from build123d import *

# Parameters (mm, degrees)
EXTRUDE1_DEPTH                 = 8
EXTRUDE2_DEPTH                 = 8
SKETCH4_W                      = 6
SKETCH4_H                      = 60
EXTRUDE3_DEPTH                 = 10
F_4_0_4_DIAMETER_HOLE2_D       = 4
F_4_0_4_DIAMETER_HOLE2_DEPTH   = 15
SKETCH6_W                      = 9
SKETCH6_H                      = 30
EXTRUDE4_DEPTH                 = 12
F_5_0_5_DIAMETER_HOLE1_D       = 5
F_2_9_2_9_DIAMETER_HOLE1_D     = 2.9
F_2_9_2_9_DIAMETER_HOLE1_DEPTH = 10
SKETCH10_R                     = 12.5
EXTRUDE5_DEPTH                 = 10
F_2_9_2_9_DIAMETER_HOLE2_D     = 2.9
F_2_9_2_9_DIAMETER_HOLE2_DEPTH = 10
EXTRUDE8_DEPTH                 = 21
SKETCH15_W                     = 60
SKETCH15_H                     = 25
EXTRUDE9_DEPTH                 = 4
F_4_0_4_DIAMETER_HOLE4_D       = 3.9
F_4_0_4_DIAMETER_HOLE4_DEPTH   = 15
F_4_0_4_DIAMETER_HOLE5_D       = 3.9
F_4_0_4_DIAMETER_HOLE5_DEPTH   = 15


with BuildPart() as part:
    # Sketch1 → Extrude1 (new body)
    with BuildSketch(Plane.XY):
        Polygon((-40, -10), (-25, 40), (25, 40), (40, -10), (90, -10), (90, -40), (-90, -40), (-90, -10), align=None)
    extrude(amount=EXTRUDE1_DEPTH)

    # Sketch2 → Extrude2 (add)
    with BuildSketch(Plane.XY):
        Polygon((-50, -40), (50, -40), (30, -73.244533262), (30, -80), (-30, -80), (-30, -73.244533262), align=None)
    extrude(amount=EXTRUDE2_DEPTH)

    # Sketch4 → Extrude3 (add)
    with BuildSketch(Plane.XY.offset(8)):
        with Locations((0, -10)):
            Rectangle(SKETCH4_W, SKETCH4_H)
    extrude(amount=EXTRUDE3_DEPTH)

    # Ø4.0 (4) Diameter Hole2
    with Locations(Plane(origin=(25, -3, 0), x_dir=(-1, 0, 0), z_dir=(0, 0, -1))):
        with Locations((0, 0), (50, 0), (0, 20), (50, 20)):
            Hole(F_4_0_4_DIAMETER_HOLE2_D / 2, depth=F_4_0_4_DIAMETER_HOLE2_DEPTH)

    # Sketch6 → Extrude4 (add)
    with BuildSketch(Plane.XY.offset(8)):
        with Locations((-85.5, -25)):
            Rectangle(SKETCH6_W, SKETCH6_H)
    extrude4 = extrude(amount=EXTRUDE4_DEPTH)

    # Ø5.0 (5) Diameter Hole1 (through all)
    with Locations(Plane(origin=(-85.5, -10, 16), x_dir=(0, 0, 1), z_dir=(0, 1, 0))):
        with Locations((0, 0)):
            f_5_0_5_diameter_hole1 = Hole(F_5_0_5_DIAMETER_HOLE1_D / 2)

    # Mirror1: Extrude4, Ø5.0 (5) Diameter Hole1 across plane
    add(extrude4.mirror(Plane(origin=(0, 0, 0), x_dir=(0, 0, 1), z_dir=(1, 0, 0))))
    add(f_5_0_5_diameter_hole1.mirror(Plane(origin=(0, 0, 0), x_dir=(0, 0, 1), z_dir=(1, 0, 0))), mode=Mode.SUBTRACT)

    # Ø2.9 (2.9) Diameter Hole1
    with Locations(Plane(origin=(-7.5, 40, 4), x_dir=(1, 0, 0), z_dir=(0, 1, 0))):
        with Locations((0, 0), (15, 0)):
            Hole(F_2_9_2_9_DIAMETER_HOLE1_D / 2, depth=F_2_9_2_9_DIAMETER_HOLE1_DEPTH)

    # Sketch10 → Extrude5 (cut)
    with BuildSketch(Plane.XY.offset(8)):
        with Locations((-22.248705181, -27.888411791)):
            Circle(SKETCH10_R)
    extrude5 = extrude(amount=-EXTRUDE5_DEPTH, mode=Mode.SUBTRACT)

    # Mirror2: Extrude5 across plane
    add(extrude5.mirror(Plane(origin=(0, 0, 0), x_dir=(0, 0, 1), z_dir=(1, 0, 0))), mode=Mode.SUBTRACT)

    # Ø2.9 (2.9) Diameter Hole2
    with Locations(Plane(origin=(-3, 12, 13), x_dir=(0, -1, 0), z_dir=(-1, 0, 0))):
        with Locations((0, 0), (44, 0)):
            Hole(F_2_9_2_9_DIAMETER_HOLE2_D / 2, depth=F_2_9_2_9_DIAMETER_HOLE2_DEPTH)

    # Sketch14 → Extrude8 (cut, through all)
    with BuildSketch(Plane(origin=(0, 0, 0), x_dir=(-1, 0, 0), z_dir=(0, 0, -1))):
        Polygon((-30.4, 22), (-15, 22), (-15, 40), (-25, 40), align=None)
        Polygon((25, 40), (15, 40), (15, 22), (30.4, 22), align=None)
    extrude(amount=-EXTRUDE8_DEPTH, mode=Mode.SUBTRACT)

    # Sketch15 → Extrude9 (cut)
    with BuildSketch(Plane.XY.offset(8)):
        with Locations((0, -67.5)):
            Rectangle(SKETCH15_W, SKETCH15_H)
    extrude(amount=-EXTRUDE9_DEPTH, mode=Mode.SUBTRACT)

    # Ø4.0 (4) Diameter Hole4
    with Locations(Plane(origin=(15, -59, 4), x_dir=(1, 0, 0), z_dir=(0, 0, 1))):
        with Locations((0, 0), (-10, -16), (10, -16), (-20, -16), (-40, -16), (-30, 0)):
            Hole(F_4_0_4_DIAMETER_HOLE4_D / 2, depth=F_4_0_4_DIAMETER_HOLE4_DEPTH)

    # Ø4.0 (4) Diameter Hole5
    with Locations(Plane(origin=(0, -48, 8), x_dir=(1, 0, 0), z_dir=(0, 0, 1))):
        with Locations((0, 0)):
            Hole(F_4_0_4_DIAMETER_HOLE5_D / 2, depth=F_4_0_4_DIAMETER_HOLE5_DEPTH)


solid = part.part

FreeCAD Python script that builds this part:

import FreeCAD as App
import Part
import Sketcher


def add_polygon(sketch, points):
    """Adds a closed chain of lines whose ends are joined by coincident constraints."""
    first, n = sketch.GeometryCount, len(points)
    for a, b in zip(points, points[1:] + points[:1]):
        sketch.addGeometry(Part.LineSegment(App.Vector(*a, 0), App.Vector(*b, 0)), False)
    for i in range(n):
        sketch.addConstraint(Sketcher.Constraint("Coincident", first + i, 2, first + (i + 1) % n, 1))

doc = App.newDocument("Part")
body = doc.addObject("PartDesign::Body", "Body")

# Sketch on XY plane
sketch1 = body.newObject("Sketcher::SketchObject", "Sketch")
sketch1.AttachmentSupport = (doc.getObject("XY_Plane"), [""])
sketch1.MapMode = "FlatFace"
add_polygon(sketch1, [(-25, 40), (-40, -10), (-90, -10), (-90, -40), (90, -40), (90, -10), (40, -10), (25, 40)])  # lines 0-7
sketch1.addConstraint([
    Sketcher.Constraint("Horizontal", 1),
    Sketcher.Constraint("Vertical", 2),
    Sketcher.Constraint("Horizontal", 3),
    Sketcher.Constraint("Vertical", 4),
    Sketcher.Constraint("Horizontal", 5),
    Sketcher.Constraint("Horizontal", 7),
    Sketcher.Constraint("Symmetric", 1, 2, 4, 2, -2),
    Sketcher.Constraint("Equal", 1, 5),
    Sketcher.Constraint("Equal", 5, 7),
    Sketcher.Constraint("Equal", 0, 6),
    Sketcher.Constraint("DistanceX", 1, 2, 1, 1, 50.0),
    Sketcher.Constraint("DistanceX", 3, 1, 3, 2, 180.0),
    Sketcher.Constraint("DistanceY", 2, 2, 2, 1, 30.0),
    Sketcher.Constraint("DistanceY", 0, 2, -1, 1, 10.0),
    Sketcher.Constraint("DistanceY", -1, 1, 6, 2, 40.0),
])
pad1 = body.newObject("PartDesign::Pad", "Pad")
pad1.Profile = sketch1
pad1.Length = 8

# Sketch on XY plane
sketch2 = body.newObject("Sketcher::SketchObject", "Sketch001")
sketch2.AttachmentSupport = (doc.getObject("XY_Plane"), [""])
sketch2.MapMode = "FlatFace"
add_polygon(sketch2, [(50, -40), (-50, -40), (-30, -73.244533), (-30, -80), (30, -80), (30, -73.244533)])  # lines 0-5
sketch2.addConstraint([
    Sketcher.Constraint("Horizontal", 0),
    Sketcher.Constraint("Vertical", 2),
    Sketcher.Constraint("Horizontal", 3),
    Sketcher.Constraint("Vertical", 4),
    Sketcher.Constraint("Symmetric", 1, 2, 4, 2, -2),
    Sketcher.Constraint("Equal", 1, 5),
    Sketcher.Constraint("DistanceX", 0, 2, 0, 1, 100.0),
    Sketcher.Constraint("DistanceX", 3, 1, 3, 2, 60.0),
    Sketcher.Constraint("DistanceY", 0, 2, -1, 1, 40.0),
    Sketcher.Constraint("DistanceY", 2, 2, -1, 1, 80.0),
    Sketcher.Constraint("DistanceY", 2, 2, 2, 1, 6.755467),
])
pad2 = body.newObject("PartDesign::Pad", "Pad001")
pad2.Profile = sketch2
pad2.Length = 8

# Sketch on XY plane
sketch3 = body.newObject("Sketcher::SketchObject", "Sketch002")
sketch3.AttachmentSupport = (doc.getObject("XY_Plane"), [""])
sketch3.MapMode = "FlatFace"
sketch3.AttachmentOffset = App.Placement(App.Vector(0, 0, 8), App.Rotation())
add_polygon(sketch3, [(-3, 20), (-3, -40), (3, -40), (3, 20)])  # lines 0-3
sketch3.addConstraint([
    Sketcher.Constraint("Vertical", 0),
    Sketcher.Constraint("Horizontal", 1),
    Sketcher.Constraint("Vertical", 2),
    Sketcher.Constraint("Horizontal", 3),
    Sketcher.Constraint("DistanceX", 1, 1, 1, 2, 6.0),
    Sketcher.Constraint("DistanceY", 0, 2, 0, 1, 60.0),
    Sketcher.Constraint("DistanceX", 0, 2, -1, 1, 3.0),
    Sketcher.Constraint("DistanceY", 0, 2, -1, 1, 40.0),
])
pad3 = body.newObject("PartDesign::Pad", "Pad002")
pad3.Profile = sketch3
pad3.Length = 10

# Sketch on XY plane
sketch4 = body.newObject("Sketcher::SketchObject", "Sketch003")
sketch4.AttachmentSupport = (doc.getObject("XY_Plane"), [""])
sketch4.MapMode = "FlatFace"
sketch4.addGeometry([
    Part.Circle(App.Vector(25, -3, 0), App.Vector(0, 0, 1), 2),
    Part.Circle(App.Vector(-25, -3, 0), App.Vector(0, 0, 1), 2),
    Part.Circle(App.Vector(25, 17, 0), App.Vector(0, 0, 1), 2),
    Part.Circle(App.Vector(-25, 17, 0), App.Vector(0, 0, 1), 2),
], False)
sketch4.addConstraint([
    Sketcher.Constraint("Equal", 0, 1),
    Sketcher.Constraint("Equal", 1, 2),
    Sketcher.Constraint("Equal", 2, 3),
    Sketcher.Constraint("Symmetric", 0, 3, 1, 3, -2),
    Sketcher.Constraint("Symmetric", 2, 3, 3, 3, -2),
    Sketcher.Constraint("Vertical", 0, 3, 2, 3),
    Sketcher.Constraint("Diameter", 0, 4.0),
    Sketcher.Constraint("DistanceX", -1, 1, 0, 3, 25.0),
    Sketcher.Constraint("DistanceY", 0, 3, -1, 1, 3.0),
    Sketcher.Constraint("DistanceY", -1, 1, 2, 3, 17.0),
])
doc.recompute()
hole = body.newObject("PartDesign::Hole", "Hole")
hole.Profile = sketch4
hole.ThreadType = "None"
hole.Diameter = 4
hole.DepthType = "Dimension"
hole.Depth = 15
hole.DrillPoint = "Flat"
hole.Reversed = True

# Sketch on XY plane
sketch5 = body.newObject("Sketcher::SketchObject", "Sketch004")
sketch5.AttachmentSupport = (doc.getObject("XY_Plane"), [""])
sketch5.MapMode = "FlatFace"
sketch5.AttachmentOffset = App.Placement(App.Vector(0, 0, 8), App.Rotation())
add_polygon(sketch5, [(-90, -10), (-90, -40), (-81, -40), (-81, -10)])  # lines 0-3
sketch5.addConstraint([
    Sketcher.Constraint("Vertical", 0),
    Sketcher.Constraint("Horizontal", 1),
    Sketcher.Constraint("Vertical", 2),
    Sketcher.Constraint("Horizontal", 3),
    Sketcher.Constraint("DistanceX", 1, 1, 1, 2, 9.0),
    Sketcher.Constraint("DistanceY", 0, 2, 0, 1, 30.0),
    Sketcher.Constraint("DistanceX", 0, 2, -1, 1, 90.0),
    Sketcher.Constraint("DistanceY", 0, 2, -1, 1, 40.0),
])
pad4 = body.newObject("PartDesign::Pad", "Pad003")
pad4.Profile = sketch5
pad4.Length = 12

# Sketch on XZ plane
sketch6 = body.newObject("Sketcher::SketchObject", "Sketch005")
sketch6.AttachmentSupport = (doc.getObject("XZ_Plane"), [""])
sketch6.MapMode = "FlatFace"
sketch6.AttachmentOffset = App.Placement(App.Vector(0, 0, 10), App.Rotation())
sketch6.addGeometry(Part.Circle(App.Vector(-85.5, 16, 0), App.Vector(0, 0, 1), 2.5), False)
sketch6.addConstraint([
    Sketcher.Constraint("Diameter", 0, 5.0),
    Sketcher.Constraint("DistanceY", -1, 1, 0, 3, 16.0),
    Sketcher.Constraint("DistanceX", 0, 3, -1, 1, 85.5),
])
doc.recompute()
hole2 = body.newObject("PartDesign::Hole", "Hole001")
hole2.Profile = sketch6
hole2.ThreadType = "None"
hole2.Diameter = 5
hole2.DepthType = "ThroughAll"
hole2.Reversed = True
doc.recompute()

mirrored = body.newObject("PartDesign::Mirrored", "Mirrored")
mirrored.Originals = [pad4, hole2]
mirrored.MirrorPlane = (doc.getObject("YZ_Plane"), [""])
body.Tip = mirrored

# Sketch on XZ plane
sketch7 = body.newObject("Sketcher::SketchObject", "Sketch006")
sketch7.AttachmentSupport = (doc.getObject("XZ_Plane"), [""])
sketch7.MapMode = "FlatFace"
sketch7.AttachmentOffset = App.Placement(App.Vector(0, 0, -40), App.Rotation())
sketch7.addGeometry([
    Part.Circle(App.Vector(-7.5, 4, 0), App.Vector(0, 0, 1), 1.45),
    Part.Circle(App.Vector(7.5, 4, 0), App.Vector(0, 0, 1), 1.45),
], False)
sketch7.addConstraint([
    Sketcher.Constraint("Equal", 0, 1),
    Sketcher.Constraint("Symmetric", 0, 3, 1, 3, -2),
    Sketcher.Constraint("Diameter", 0, 2.9),
    Sketcher.Constraint("DistanceY", -1, 1, 0, 3, 4.0),
    Sketcher.Constraint("DistanceX", 0, 3, 1, 3, 15.0),
])
doc.recompute()
hole3 = body.newObject("PartDesign::Hole", "Hole002")
hole3.Profile = sketch7
hole3.ThreadType = "None"
hole3.Diameter = 2.9
hole3.DepthType = "Dimension"
hole3.Depth = 10
hole3.DrillPoint = "Flat"
hole3.Reversed = True

# Sketch on XY plane
sketch8 = body.newObject("Sketcher::SketchObject", "Sketch007")
sketch8.AttachmentSupport = (doc.getObject("XY_Plane"), [""])
sketch8.MapMode = "FlatFace"
sketch8.AttachmentOffset = App.Placement(App.Vector(0, 0, 8), App.Rotation())
sketch8.addGeometry(Part.Circle(App.Vector(-22.248705, -27.888412, 0), App.Vector(0, 0, 1), 12.5), False)
sketch8.addConstraint([
    Sketcher.Constraint("Diameter", 0, 25.0),
    Sketcher.Constraint("DistanceY", 0, 3, -1, 1, 27.888412),
    Sketcher.Constraint("DistanceX", 0, 3, -1, 1, 22.248705),
])
pocket1 = body.newObject("PartDesign::Pocket", "Pocket")
pocket1.Profile = sketch8
pocket1.Length = 10
doc.recompute()

mirrored2 = body.newObject("PartDesign::Mirrored", "Mirrored001")
mirrored2.Originals = [pocket1]
mirrored2.MirrorPlane = (doc.getObject("YZ_Plane"), [""])
body.Tip = mirrored2

# Sketch on YZ plane
sketch9 = body.newObject("Sketcher::SketchObject", "Sketch008")
sketch9.AttachmentSupport = (doc.getObject("YZ_Plane"), [""])
sketch9.MapMode = "FlatFace"
sketch9.AttachmentOffset = App.Placement(App.Vector(0, 0, -3), App.Rotation())
sketch9.addGeometry([
    Part.Circle(App.Vector(12, 13, 0), App.Vector(0, 0, 1), 1.45),
    Part.Circle(App.Vector(-32, 13, 0), App.Vector(0, 0, 1), 1.45),
], False)
sketch9.addConstraint([
    Sketcher.Constraint("Equal", 0, 1),
    Sketcher.Constraint("Horizontal", 0, 3, 1, 3),
    Sketcher.Constraint("Diameter", 0, 2.9),
    Sketcher.Constraint("DistanceX", -1, 1, 0, 3, 12.0),
    Sketcher.Constraint("DistanceY", -1, 1, 0, 3, 13.0),
    Sketcher.Constraint("DistanceX", 1, 3, -1, 1, 32.0),
])
doc.recompute()
hole4 = body.newObject("PartDesign::Hole", "Hole003")
hole4.Profile = sketch9
hole4.ThreadType = "None"
hole4.Diameter = 2.9
hole4.DepthType = "Dimension"
hole4.Depth = 10
hole4.DrillPoint = "Flat"
hole4.Reversed = True

# Sketch on XY plane
sketch10 = body.newObject("Sketcher::SketchObject", "Sketch009")
sketch10.AttachmentSupport = (doc.getObject("XY_Plane"), [""])
sketch10.MapMode = "FlatFace"
add_polygon(sketch10, [(30.4, 22), (15, 22), (15, 40), (25, 40)])  # lines 0-3
add_polygon(sketch10, [(-25, 40), (-15, 40), (-15, 22), (-30.4, 22)])  # lines 4-7
sketch10.addConstraint([
    Sketcher.Constraint("Horizontal", 0),
    Sketcher.Constraint("Vertical", 1),
    Sketcher.Constraint("Horizontal", 2),
    Sketcher.Constraint("Horizontal", 4),
    Sketcher.Constraint("Vertical", 5),
    Sketcher.Constraint("Horizontal", 6),
    Sketcher.Constraint("Symmetric", 1, 2, 4, 2, -2),
    Sketcher.Constraint("Symmetric", 3, 2, 6, 2, -2),
    Sketcher.Constraint("Equal", 2, 4),
    Sketcher.Constraint("DistanceX", 2, 1, 2, 2, 10.0),
    Sketcher.Constraint("DistanceY", 1, 1, 1, 2, 18.0),
    Sketcher.Constraint("DistanceX", 0, 2, 0, 1, 15.4),
    Sketcher.Constraint("DistanceX", -1, 1, 0, 2, 15.0),
    Sketcher.Constraint("DistanceY", -1, 1, 0, 2, 22.0),
])
pocket2 = body.newObject("PartDesign::Pocket", "Pocket001")
pocket2.Profile = sketch10
pocket2.Type = "ThroughAll"
pocket2.Reversed = True

# Sketch on XY plane
sketch11 = body.newObject("Sketcher::SketchObject", "Sketch010")
sketch11.AttachmentSupport = (doc.getObject("XY_Plane"), [""])
sketch11.MapMode = "FlatFace"
sketch11.AttachmentOffset = App.Placement(App.Vector(0, 0, 8), App.Rotation())
add_polygon(sketch11, [(-30, -55), (-30, -80), (30, -80), (30, -55)])  # lines 0-3
sketch11.addConstraint([
    Sketcher.Constraint("Vertical", 0),
    Sketcher.Constraint("Horizontal", 1),
    Sketcher.Constraint("Vertical", 2),
    Sketcher.Constraint("Horizontal", 3),
    Sketcher.Constraint("DistanceX", 1, 1, 1, 2, 60.0),
    Sketcher.Constraint("DistanceY", 0, 2, 0, 1, 25.0),
    Sketcher.Constraint("DistanceX", 0, 2, -1, 1, 30.0),
    Sketcher.Constraint("DistanceY", 0, 2, -1, 1, 80.0),
])
pocket3 = body.newObject("PartDesign::Pocket", "Pocket002")
pocket3.Profile = sketch11
pocket3.Length = 4

# Sketch on XY plane
sketch12 = body.newObject("Sketcher::SketchObject", "Sketch011")
sketch12.AttachmentSupport = (doc.getObject("XY_Plane"), [""])
sketch12.MapMode = "FlatFace"
sketch12.AttachmentOffset = App.Placement(App.Vector(0, 0, 4), App.Rotation())
sketch12.addGeometry([
    Part.Circle(App.Vector(15, -59, 0), App.Vector(0, 0, 1), 1.95),  # 0
    Part.Circle(App.Vector(5, -75, 0), App.Vector(0, 0, 1), 1.95),  # 1
    Part.Circle(App.Vector(25, -75, 0), App.Vector(0, 0, 1), 1.95),  # 2
    Part.Circle(App.Vector(-5, -75, 0), App.Vector(0, 0, 1), 1.95),  # 3
    Part.Circle(App.Vector(-25, -75, 0), App.Vector(0, 0, 1), 1.95),  # 4
    Part.Circle(App.Vector(-15, -59, 0), App.Vector(0, 0, 1), 1.95),  # 5
], False)
sketch12.addConstraint([
    Sketcher.Constraint("Equal", 0, 1),
    Sketcher.Constraint("Equal", 1, 2),
    Sketcher.Constraint("Equal", 2, 3),
    Sketcher.Constraint("Equal", 3, 4),
    Sketcher.Constraint("Equal", 4, 5),
    Sketcher.Constraint("Symmetric", 1, 3, 3, 3, -2),
    Sketcher.Constraint("Symmetric", 2, 3, 4, 3, -2),
    Sketcher.Constraint("Symmetric", 0, 3, 5, 3, -2),
    Sketcher.Constraint("Horizontal", 1, 3, 2, 3),
    Sketcher.Constraint("Diameter", 0, 3.9),
    Sketcher.Constraint("DistanceX", -1, 1, 0, 3, 15.0),
    Sketcher.Constraint("DistanceY", 0, 3, -1, 1, 59.0),
    Sketcher.Constraint("DistanceX", -1, 1, 1, 3, 5.0),
    Sketcher.Constraint("DistanceY", 1, 3, -1, 1, 75.0),
    Sketcher.Constraint("DistanceX", -1, 1, 2, 3, 25.0),
])
doc.recompute()
hole5 = body.newObject("PartDesign::Hole", "Hole004")
hole5.Profile = sketch12
hole5.ThreadType = "None"
hole5.Diameter = 3.9
hole5.DepthType = "Dimension"
hole5.Depth = 15
hole5.DrillPoint = "Flat"

# Sketch on XY plane
sketch13 = body.newObject("Sketcher::SketchObject", "Sketch012")
sketch13.AttachmentSupport = (doc.getObject("XY_Plane"), [""])
sketch13.MapMode = "FlatFace"
sketch13.AttachmentOffset = App.Placement(App.Vector(0, 0, 8), App.Rotation())
sketch13.addGeometry(Part.Circle(App.Vector(0, -48, 0), App.Vector(0, 0, 1), 1.95), False)
sketch13.addConstraint([
    Sketcher.Constraint("PointOnObject", 0, 3, -2),
    Sketcher.Constraint("Diameter", 0, 3.9),
    Sketcher.Constraint("DistanceY", 0, 3, -1, 1, 48.0),
])
doc.recompute()
hole6 = body.newObject("PartDesign::Hole", "Hole005")
hole6.Profile = sketch13
hole6.ThreadType = "None"
hole6.Diameter = 3.9
hole6.DepthType = "Dimension"
hole6.Depth = 15
hole6.DrillPoint = "Flat"

doc.recompute()
